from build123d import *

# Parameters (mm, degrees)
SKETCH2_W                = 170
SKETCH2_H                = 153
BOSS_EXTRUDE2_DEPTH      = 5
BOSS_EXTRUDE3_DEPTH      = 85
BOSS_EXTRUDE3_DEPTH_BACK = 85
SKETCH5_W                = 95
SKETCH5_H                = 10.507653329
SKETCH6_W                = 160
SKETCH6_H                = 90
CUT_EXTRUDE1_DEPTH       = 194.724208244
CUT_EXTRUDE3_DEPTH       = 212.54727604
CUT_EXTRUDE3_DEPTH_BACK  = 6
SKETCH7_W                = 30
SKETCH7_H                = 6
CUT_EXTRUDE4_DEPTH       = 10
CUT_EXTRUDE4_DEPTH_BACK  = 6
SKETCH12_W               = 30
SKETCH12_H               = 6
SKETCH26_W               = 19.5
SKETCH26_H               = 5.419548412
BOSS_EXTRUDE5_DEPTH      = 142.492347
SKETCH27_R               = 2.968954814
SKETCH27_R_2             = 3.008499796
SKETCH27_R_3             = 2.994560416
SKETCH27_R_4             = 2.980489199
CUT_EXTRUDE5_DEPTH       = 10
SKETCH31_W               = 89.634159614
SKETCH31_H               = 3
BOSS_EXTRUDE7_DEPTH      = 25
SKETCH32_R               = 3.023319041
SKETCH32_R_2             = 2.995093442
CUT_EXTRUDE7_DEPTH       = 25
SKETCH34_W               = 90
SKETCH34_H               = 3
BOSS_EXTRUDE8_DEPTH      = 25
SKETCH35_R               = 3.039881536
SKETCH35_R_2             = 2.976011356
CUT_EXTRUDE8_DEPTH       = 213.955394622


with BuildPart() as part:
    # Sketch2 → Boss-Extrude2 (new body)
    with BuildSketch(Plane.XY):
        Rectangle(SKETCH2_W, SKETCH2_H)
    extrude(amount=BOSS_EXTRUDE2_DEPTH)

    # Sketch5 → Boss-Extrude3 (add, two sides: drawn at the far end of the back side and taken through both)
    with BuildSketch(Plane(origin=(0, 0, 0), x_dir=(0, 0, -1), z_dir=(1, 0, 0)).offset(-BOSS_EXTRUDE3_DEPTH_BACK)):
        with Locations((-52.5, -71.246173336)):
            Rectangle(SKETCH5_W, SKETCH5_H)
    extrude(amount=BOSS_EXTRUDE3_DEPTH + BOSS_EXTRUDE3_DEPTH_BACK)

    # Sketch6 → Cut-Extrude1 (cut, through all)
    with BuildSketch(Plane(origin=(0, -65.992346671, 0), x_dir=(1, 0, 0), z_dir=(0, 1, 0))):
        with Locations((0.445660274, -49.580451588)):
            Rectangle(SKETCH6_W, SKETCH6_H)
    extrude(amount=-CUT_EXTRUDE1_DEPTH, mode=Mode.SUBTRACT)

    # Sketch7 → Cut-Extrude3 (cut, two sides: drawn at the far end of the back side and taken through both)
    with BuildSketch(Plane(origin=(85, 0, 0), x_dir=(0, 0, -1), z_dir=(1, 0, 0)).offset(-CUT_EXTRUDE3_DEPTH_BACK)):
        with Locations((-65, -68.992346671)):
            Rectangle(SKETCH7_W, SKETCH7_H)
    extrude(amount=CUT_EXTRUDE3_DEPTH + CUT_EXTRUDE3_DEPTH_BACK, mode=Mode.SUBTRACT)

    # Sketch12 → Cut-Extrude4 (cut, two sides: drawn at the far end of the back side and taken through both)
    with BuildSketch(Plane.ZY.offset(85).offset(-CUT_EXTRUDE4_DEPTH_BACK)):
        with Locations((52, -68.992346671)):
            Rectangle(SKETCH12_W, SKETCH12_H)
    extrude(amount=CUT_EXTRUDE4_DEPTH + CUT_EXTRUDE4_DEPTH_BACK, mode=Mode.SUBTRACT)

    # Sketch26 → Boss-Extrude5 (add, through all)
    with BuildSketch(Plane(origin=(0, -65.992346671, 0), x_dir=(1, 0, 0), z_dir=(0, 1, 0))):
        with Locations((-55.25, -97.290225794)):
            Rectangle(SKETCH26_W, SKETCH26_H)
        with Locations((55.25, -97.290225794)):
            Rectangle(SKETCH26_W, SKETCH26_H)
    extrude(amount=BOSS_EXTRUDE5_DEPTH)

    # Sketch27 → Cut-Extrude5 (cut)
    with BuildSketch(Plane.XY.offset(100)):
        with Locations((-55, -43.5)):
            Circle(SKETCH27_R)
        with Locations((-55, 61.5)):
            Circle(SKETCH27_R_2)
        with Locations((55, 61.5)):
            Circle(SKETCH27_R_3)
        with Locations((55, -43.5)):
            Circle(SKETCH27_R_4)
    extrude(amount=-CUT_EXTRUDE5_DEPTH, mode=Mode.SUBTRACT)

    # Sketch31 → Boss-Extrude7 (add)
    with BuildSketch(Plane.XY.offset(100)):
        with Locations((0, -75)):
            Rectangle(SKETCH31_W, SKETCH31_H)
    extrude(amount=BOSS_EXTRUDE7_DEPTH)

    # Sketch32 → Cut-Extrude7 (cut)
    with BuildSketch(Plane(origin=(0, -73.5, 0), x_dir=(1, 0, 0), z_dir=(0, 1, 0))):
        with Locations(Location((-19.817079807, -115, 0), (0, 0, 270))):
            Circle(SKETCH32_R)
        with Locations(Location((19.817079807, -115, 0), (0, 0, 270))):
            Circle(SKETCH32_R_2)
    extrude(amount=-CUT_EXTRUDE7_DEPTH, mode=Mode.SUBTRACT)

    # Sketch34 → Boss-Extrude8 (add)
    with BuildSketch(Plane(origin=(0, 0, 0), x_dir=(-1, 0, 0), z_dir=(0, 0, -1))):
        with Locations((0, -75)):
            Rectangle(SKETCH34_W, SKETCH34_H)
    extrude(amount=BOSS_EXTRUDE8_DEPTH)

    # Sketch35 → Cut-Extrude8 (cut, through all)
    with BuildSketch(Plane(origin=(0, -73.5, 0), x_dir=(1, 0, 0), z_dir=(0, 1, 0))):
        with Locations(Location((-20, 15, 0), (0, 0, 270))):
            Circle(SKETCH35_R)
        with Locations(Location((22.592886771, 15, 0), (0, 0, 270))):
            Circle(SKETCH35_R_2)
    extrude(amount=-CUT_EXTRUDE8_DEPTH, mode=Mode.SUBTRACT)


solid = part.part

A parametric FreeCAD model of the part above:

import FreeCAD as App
import Part
import Sketcher


def add_polygon(sketch, points):
    """Adds a closed chain of lines whose ends are joined by coincident constraints."""
    first, n = sketch.GeometryCount, len(points)
    for a, b in zip(points, points[1:] + points[:1]):
        sketch.addGeometry(Part.LineSegment(App.Vector(*a, 0), App.Vector(*b, 0)), False)
    for i in range(n):
        sketch.addConstraint(Sketcher.Constraint("Coincident", first + i, 2, first + (i + 1) % n, 1))

doc = App.newDocument("Part")
params = doc.addObject("Spreadsheet::Sheet", "Params")
for row, (alias, value) in enumerate([
    ("sketch1_width", "170 mm"),
    ("sketch1_height", "153 mm"),
    ("pad1_length", "5 mm"),
    ("sketch2_height", "95 mm"),
    ("pad2_length", "85 mm"),
    ("pad2_length2", "85 mm"),
    ("sketch3_width", "160 mm"),
    ("sketch3_height", "90 mm"),
    ("sketch4_width", "6 mm"),
    ("sketch4_height", "30 mm"),
    ("pocket2_length", "212.547276 mm"),
    ("pocket2_length2", "6 mm"),
    ("sketch5_width", "6 mm"),
    ("sketch5_height", "30 mm"),
    ("pocket3_length", "10 mm"),
    ("pocket3_length2", "6 mm"),
    ("sketch6_width", "19.5 mm"),
    ("pad3_length", "142.492347 mm"),
    ("pocket4_length", "10 mm"),
    ("sketch8_height", "3 mm"),
    ("pad4_length", "25 mm"),
    ("pocket5_length", "25 mm"),
    ("sketch10_width", "90 mm"),
    ("sketch10_height", "3 mm"),
    ("pad5_length", "25 mm"),
], start=1):
    params.set(f"A{row}", alias)
    params.set(f"B{row}", "=" + value)
    params.setAlias(f"B{row}", alias)

body = doc.addObject("PartDesign::Body", "Body")

sketch1 = body.newObject("Sketcher::SketchObject", "Sketch")
sketch1.AttachmentSupport = (doc.getObject("XY_Plane"), [""])
sketch1.MapMode = "FlatFace"
add_polygon(sketch1, [(-85, 76), (-85, -76), (85, -76), (85, 76)])
sketch1.addConstraint(Sketcher.Constraint("Vertical", 0))
sketch1.addConstraint(Sketcher.Constraint("Horizontal", 1))
sketch1.addConstraint(Sketcher.Constraint("Vertical", 2))
sketch1.addConstraint(Sketcher.Constraint("Horizontal", 3))
sketch1.addConstraint(Sketcher.Constraint("Symmetric", 0, 2, 2, 2, -1, 1))
sketch1.addConstraint(Sketcher.Constraint("DistanceX", 1, 1, 1, 2, 170.0))
sketch1.addConstraint(Sketcher.Constraint("DistanceY", 0, 2, 0, 1, 153.0))
sketch1.setExpression("Constraints[9]", "Params.sketch1_width")
sketch1.setExpression("Constraints[10]", "Params.sketch1_height")
pad1 = body.newObject("PartDesign::Pad", "Pad")
pad1.Profile = sketch1
pad1.setExpression("Length", "Params.pad1_length")

sketch2 = body.newObject("Sketcher::SketchObject", "Sketch001")
sketch2.AttachmentSupport = (doc.getObject("YZ_Plane"), [""])
sketch2.MapMode = "FlatFace"
add_polygon(sketch2, [(-66, 100), (-76, 100), (-76, 5), (-66, 5)])
sketch2.addConstraint(Sketcher.Constraint("Horizontal", 0))
sketch2.addConstraint(Sketcher.Constraint("Vertical", 1))
sketch2.addConstraint(Sketcher.Constraint("Horizontal", 2))
sketch2.addConstraint(Sketcher.Constraint("Vertical", 3))
sketch2.addConstraint(Sketcher.Constraint("DistanceY", 1, 2, 1, 1, 95.0))
sketch2.addConstraint(Sketcher.Constraint("DistanceY", -1, 1, 0, 2, 100.0))
sketch2.addConstraint(Sketcher.Constraint("DistanceX", 0, 2, -1, 1, 76.5))
sketch2.addConstraint(Sketcher.Constraint("DistanceX", 0, 2, 0, 1, 10.507653))
sketch2.setExpression("Constraints[8]", "Params.sketch2_height")
pad2 = body.newObject("PartDesign::Pad", "Pad001")
pad2.Profile = sketch2
pad2.Type = "TwoLengths"
pad2.setExpression("Length", "Params.pad2_length")
pad2.setExpression("Length2", "Params.pad2_length2")

sketch3 = body.newObject("Sketcher::SketchObject", "Sketch002")
sketch3.AttachmentSupport = (doc.getObject("XZ_Plane"), [""])
sketch3.MapMode = "FlatFace"
sketch3.AttachmentOffset = App.Placement(App.Vector(0, 0, 65.992347), App.Rotation())
add_polygon(sketch3, [(-80, 5), (-80, 95), (80, 95), (80, 5)])
sketch3.addConstraint(Sketcher.Constraint("Vertical", 0))
sketch3.addConstraint(Sketcher.Constraint("Horizontal", 1))
sketch3.addConstraint(Sketcher.Constraint("Vertical", 2))
sketch3.addConstraint(Sketcher.Constraint("Horizontal", 3))
sketch3.addConstraint(Sketcher.Constraint("DistanceX", 1, 1, 1, 2, 160.0))
sketch3.addConstraint(Sketcher.Constraint("DistanceY", 0, 1, 0, 2, 90.0))
sketch3.addConstraint(Sketcher.Constraint("DistanceX", 0, 2, -1, 1, 79.55434))
sketch3.addConstraint(Sketcher.Constraint("DistanceY", -1, 1, 0, 2, 94.580452))
sketch3.setExpression("Constraints[8]", "Params.sketch3_width")
sketch3.setExpression("Constraints[9]", "Params.sketch3_height")
pocket1 = body.newObject("PartDesign::Pocket", "Pocket")
pocket1.Profile = sketch3
pocket1.Type = "ThroughAll"
pocket1.Reversed = True

sketch4 = body.newObject("Sketcher::SketchObject", "Sketch003")
sketch4.AttachmentSupport = (doc.getObject("YZ_Plane"), [""])
sketch4.MapMode = "FlatFace"
sketch4.AttachmentOffset = App.Placement(App.Vector(0, 0, 85), App.Rotation())
add_polygon(sketch4, [(-66, 80), (-72, 80), (-72, 50), (-66, 50)])
sketch4.addConstraint(Sketcher.Constraint("Horizontal", 0))
sketch4.addConstraint(Sketcher.Constraint("Vertical", 1))
sketch4.addConstraint(Sketcher.Constraint("Horizontal", 2))
sketch4.addConstraint(Sketcher.Constraint("Vertical", 3))
sketch4.addConstraint(Sketcher.Constraint("DistanceX", 0, 2, 0, 1, 6.0))
sketch4.addConstraint(Sketcher.Constraint("DistanceY", 1, 2, 1, 1, 30.0))
sketch4.addConstraint(Sketcher.Constraint("DistanceY", -1, 1, 0, 2, 80.0))
sketch4.addConstraint(Sketcher.Constraint("DistanceX", 0, 2, -1, 1, 71.992347))
sketch4.setExpression("Constraints[8]", "Params.sketch4_width")
sketch4.setExpression("Constraints[9]", "Params.sketch4_height")
pocket2 = body.newObject("PartDesign::Pocket", "Pocket001")
pocket2.Profile = sketch4
pocket2.Type = "TwoLengths"
pocket2.setExpression("Length", "Params.pocket2_length")
pocket2.setExpression("Length2", "Params.pocket2_length2")
pocket2.Reversed = True

sketch5 = body.newObject("Sketcher::SketchObject", "Sketch004")
sketch5.AttachmentSupport = (doc.getObject("YZ_Plane"), [""])
sketch5.MapMode = "FlatFace"
sketch5.AttachmentOffset = App.Placement(App.Vector(0, 0, -85), App.Rotation())
add_polygon(sketch5, [(-66, 37), (-72, 37), (-72, 67), (-66, 67)])
sketch5.addConstraint(Sketcher.Constraint("Horizontal", 0))
sketch5.addConstraint(Sketcher.Constraint("Vertical", 1))
sketch5.addConstraint(Sketcher.Constraint("Horizontal", 2))
sketch5.addConstraint(Sketcher.Constraint("Vertical", 3))
sketch5.addConstraint(Sketcher.Constraint("DistanceX", 0, 2, 0, 1, 6.0))
sketch5.addConstraint(Sketcher.Constraint("DistanceY", 1, 1, 1, 2, 30.0))
sketch5.addConstraint(Sketcher.Constraint("DistanceY", -1, 1, 0, 2, 37.0))
sketch5.addConstraint(Sketcher.Constraint("DistanceX", 0, 2, -1, 1, 71.992347))
sketch5.setExpression("Constraints[8]", "Params.sketch5_width")
sketch5.setExpression("Constraints[9]", "Params.sketch5_height")
pocket3 = body.newObject("PartDesign::Pocket", "Pocket002")
pocket3.Profile = sketch5
pocket3.Type = "TwoLengths"
pocket3.setExpression("Length", "Params.pocket3_length")
pocket3.setExpression("Length2", "Params.pocket3_length2")

sketch6 = body.newObject("Sketcher::SketchObject", "Sketch005")
sketch6.AttachmentSupport = (doc.getObject("XZ_Plane"), [""])
sketch6.MapMode = "FlatFace"
sketch6.AttachmentOffset = App.Placement(App.Vector(0, 0, 65.992347), App.Rotation())
add_polygon(sketch6, [(-65, 95), (-65, 100), (-46, 100), (-46, 95)])
add_polygon(sketch6, [(46, 95), (46, 100), (65, 100), (65, 95)])
sketch6.addConstraint(Sketcher.Constraint("Vertical", 0))
sketch6.addConstraint(Sketcher.Constraint("Horizontal", 1))
sketch6.addConstraint(Sketcher.Constraint("Vertical", 2))
sketch6.addConstraint(Sketcher.Constraint("Horizontal", 3))
sketch6.addConstraint(Sketcher.Constraint("Vertical", 4))
sketch6.addConstraint(Sketcher.Constraint("Horizontal", 5))
sketch6.addConstraint(Sketcher.Constraint("Vertical", 6))
sketch6.addConstraint(Sketcher.Constraint("Horizontal", 7))
sketch6.addConstraint(Sketcher.Constraint("Symmetric", 1, 2, 4, 2, -2))
sketch6.addConstraint(Sketcher.Constraint("Symmetric", 3, 2, 6, 2, -2))
sketch6.addConstraint(Sketcher.Constraint("DistanceX", 1, 1, 1, 2, 19.5))
sketch6.addConstraint(Sketcher.Constraint("DistanceX", 0, 2, -1, 1, 65.0))
sketch6.addConstraint(Sketcher.Constraint("DistanceY", -1, 1, 0, 2, 100.0))
sketch6.addConstraint(Sketcher.Constraint("DistanceY", 0, 1, 0, 2, 5.419548))
sketch6.setExpression("Constraints[18]", "Params.sketch6_width")
pad3 = body.newObject("PartDesign::Pad", "Pad002")
pad3.Profile = sketch6
pad3.setExpression("Length", "Params.pad3_length")
pad3.Reversed = True

sketch7 = body.newObject("Sketcher::SketchObject", "Sketch006")
sketch7.AttachmentSupport = (doc.getObject("XY_Plane"), [""])
sketch7.MapMode = "FlatFace"
sketch7.AttachmentOffset = App.Placement(App.Vector(0, 0, 100), App.Rotation())
sketch7.addGeometry(Part.Circle(App.Vector(-55, -43.5, 0), App.Vector(0, 0, 1), 3), False)
sketch7.addGeometry(Part.Circle(App.Vector(-55, 61.5, 0), App.Vector(0, 0, 1), 3), False)
sketch7.addGeometry(Part.Circle(App.Vector(55, 61.5, 0), App.Vector(0, 0, 1), 3), False)
sketch7.addGeometry(Part.Circle(App.Vector(55, -43.5, 0), App.Vector(0, 0, 1), 3), False)
sketch7.addConstraint(Sketcher.Constraint("Symmetric", 1, 3, 2, 3, -2))
sketch7.addConstraint(Sketcher.Constraint("Symmetric", 0, 3, 3, 3, -2))
sketch7.addConstraint(Sketcher.Constraint("Vertical", 0, 3, 1, 3))
sketch7.addConstraint(Sketcher.Constraint("Diameter", 1, 6.017))
sketch7.addConstraint(Sketcher.Constraint("DistanceX", 0, 3, -1, 1, 55.0))
sketch7.addConstraint(Sketcher.Constraint("DistanceY", 0, 3, 1, 3, 105.0))
sketch7.addConstraint(Sketcher.Constraint("DistanceY", 0, 3, -1, 1, 43.5))
sketch7.addConstraint(Sketcher.Constraint("Diameter", 0, 5.93791))
sketch7.addConstraint(Sketcher.Constraint("Diameter", 2, 5.989121))
sketch7.addConstraint(Sketcher.Constraint("Diameter", 3, 5.960978))
pocket4 = body.newObject("PartDesign::Pocket", "Pocket003")
pocket4.Profile = sketch7
pocket4.setExpression("Length", "Params.pocket4_length")

sketch8 = body.newObject("Sketcher::SketchObject", "Sketch007")
sketch8.AttachmentSupport = (doc.getObject("XY_Plane"), [""])
sketch8.MapMode = "FlatFace"
sketch8.AttachmentOffset = App.Placement(App.Vector(0, 0, 100), App.Rotation())
add_polygon(sketch8, [(-44.8, -73.5), (-44.8, -76.5), (44.8, -76.5), (44.8, -73.5)])
sketch8.addConstraint(Sketcher.Constraint("Vertical", 0))
sketch8.addConstraint(Sketcher.Constraint("Horizontal", 1))
sketch8.addConstraint(Sketcher.Constraint("Vertical", 2))
sketch8.addConstraint(Sketcher.Constraint("Horizontal", 3))
sketch8.addConstraint(Sketcher.Constraint("DistanceY", 0, 2, 0, 1, 3.0))
sketch8.addConstraint(Sketcher.Constraint("DistanceY", 0, 2, -1, 1, 76.5))
sketch8.addConstraint(Sketcher.Constraint("DistanceX", 1, 1, 1, 2, 89.63416))
sketch8.addConstraint(Sketcher.Constraint("DistanceX", 0, 2, -1, 1, 44.81708))
sketch8.setExpression("Constraints[8]", "Params.sketch8_height")
pad4 = body.newObject("PartDesign::Pad", "Pad003")
pad4.Profile = sketch8
pad4.setExpression("Length", "Params.pad4_length")

sketch9 = body.newObject("Sketcher::SketchObject", "Sketch008")
sketch9.AttachmentSupport = (doc.getObject("XZ_Plane"), [""])
sketch9.MapMode = "FlatFace"
sketch9.AttachmentOffset = App.Placement(App.Vector(0, 0, 73.5), App.Rotation())
sketch9.addGeometry(Part.Circle(App.Vector(-19.8, 115, 0), App.Vector(0, 0, 1), 3), False)
sketch9.addGeometry(Part.Circle(App.Vector(19.8, 115, 0), App.Vector(0, 0, 1), 3), False)
sketch9.addConstraint(Sketcher.Constraint("Symmetric", 0, 3, 1, 3, -2))
sketch9.addConstraint(Sketcher.Constraint("DistanceY", -1, 1, 0, 3, 115.0))
sketch9.addConstraint(Sketcher.Constraint("Diameter", 0, 6.046638))
sketch9.addConstraint(Sketcher.Constraint("Diameter", 1, 5.990187))
sketch9.addConstraint(Sketcher.Constraint("DistanceX", 0, 3, -1, 1, 19.81708))
pocket5 = body.newObject("PartDesign::Pocket", "Pocket004")
pocket5.Profile = sketch9
pocket5.setExpression("Length", "Params.pocket5_length")
pocket5.Reversed = True

sketch10 = body.newObject("Sketcher::SketchObject", "Sketch009")
sketch10.AttachmentSupport = (doc.getObject("XY_Plane"), [""])
sketch10.MapMode = "FlatFace"
add_polygon(sketch10, [(45, -73.5), (45, -76.5), (-45, -76.5), (-45, -73.5)])
sketch10.addConstraint(Sketcher.Constraint("Vertical", 0))
sketch10.addConstraint(Sketcher.Constraint("Horizontal", 1))
sketch10.addConstraint(Sketcher.Constraint("Vertical", 2))
sketch10.addConstraint(Sketcher.Constraint("Horizontal", 3))
sketch10.addConstraint(Sketcher.Constraint("DistanceX", 1, 2, 1, 1, 90.0))
sketch10.addConstraint(Sketcher.Constraint("DistanceY", 0, 2, 0, 1, 3.0))
sketch10.addConstraint(Sketcher.Constraint("DistanceX", -1, 1, 0, 2, 45.0))
sketch10.addConstraint(Sketcher.Constraint("DistanceY", 0, 2, -1, 1, 76.5))
sketch10.setExpression("Constraints[8]", "Params.sketch10_width")
sketch10.setExpression("Constraints[9]", "Params.sketch10_height")
pad5 = body.newObject("PartDesign::Pad", "Pad004")
pad5.Profile = sketch10
pad5.setExpression("Length", "Params.pad5_length")
pad5.Reversed = True

sketch11 = body.newObject("Sketcher::SketchObject", "Sketch010")
sketch11.AttachmentSupport = (doc.getObject("XZ_Plane"), [""])
sketch11.MapMode = "FlatFace"
sketch11.AttachmentOffset = App.Placement(App.Vector(0, 0, 73.5), App.Rotation())
sketch11.addGeometry(Part.Circle(App.Vector(-20, -15, 0), App.Vector(0, 0, 1), 3), False)
sketch11.addGeometry(Part.Circle(App.Vector(22.6, -15, 0), App.Vector(0, 0, 1), 3), False)
sketch11.addConstraint(Sketcher.Constraint("Horizontal", 0, 3, 1, 3))
sketch11.addConstraint(Sketcher.Constraint("DistanceX", 0, 3, -1, 1, 20.0))
sketch11.addConstraint(Sketcher.Constraint("DistanceY", 0, 3, -1, 1, 15.0))
sketch11.addConstraint(Sketcher.Constraint("Diameter", 0, 6.079763))
sketch11.addConstraint(Sketcher.Constraint("Diameter", 1, 5.952023))
sketch11.addConstraint(Sketcher.Constraint("DistanceX", -1, 1, 1, 3, 22.592887))
pocket6 = body.newObject("PartDesign::Pocket", "Pocket005")
pocket6.Profile = sketch11
pocket6.Type = "ThroughAll"
pocket6.Reversed = True

doc.recompute()
